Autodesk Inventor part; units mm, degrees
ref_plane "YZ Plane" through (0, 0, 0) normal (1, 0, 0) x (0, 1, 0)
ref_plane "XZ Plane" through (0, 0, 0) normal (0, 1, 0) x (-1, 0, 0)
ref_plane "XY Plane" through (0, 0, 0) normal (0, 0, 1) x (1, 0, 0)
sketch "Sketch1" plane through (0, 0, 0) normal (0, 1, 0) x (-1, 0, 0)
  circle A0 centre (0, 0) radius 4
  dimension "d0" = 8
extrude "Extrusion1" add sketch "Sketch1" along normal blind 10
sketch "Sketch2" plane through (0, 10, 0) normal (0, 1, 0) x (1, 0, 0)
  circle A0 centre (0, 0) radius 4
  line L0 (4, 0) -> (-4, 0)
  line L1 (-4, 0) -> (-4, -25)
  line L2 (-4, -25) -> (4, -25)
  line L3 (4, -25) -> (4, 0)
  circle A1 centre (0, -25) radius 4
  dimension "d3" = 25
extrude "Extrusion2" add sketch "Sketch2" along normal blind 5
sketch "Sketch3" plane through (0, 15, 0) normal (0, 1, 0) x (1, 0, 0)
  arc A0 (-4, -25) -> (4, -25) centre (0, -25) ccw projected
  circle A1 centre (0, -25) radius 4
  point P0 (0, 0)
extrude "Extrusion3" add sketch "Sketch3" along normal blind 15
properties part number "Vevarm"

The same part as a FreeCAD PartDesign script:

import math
import FreeCAD as App
import Part
import Sketcher

doc = App.newDocument("Part")
body = doc.addObject("PartDesign::Body", "Body")

sketch1 = body.newObject("Sketcher::SketchObject", "Sketch")
sketch1.AttachmentSupport = (doc.getObject("XZ_Plane"), [""])
sketch1.MapMode = "FlatFace"
sketch1.addGeometry(Part.Circle(App.Vector(0, 0, 0), App.Vector(0, 0, 1), 4), False)
sketch1.addConstraint([
    Sketcher.Constraint("Coincident", 0, 3, -1, 1),
    Sketcher.Constraint("Diameter", 0, 8.0),
])
pad1 = body.newObject("PartDesign::Pad", "Pad")
pad1.Profile = sketch1
pad1.Length = 10
pad1.Reversed = True

sketch2 = body.newObject("Sketcher::SketchObject", "Sketch001")
sketch2.AttachmentSupport = (doc.getObject("XZ_Plane"), [""])
sketch2.MapMode = "FlatFace"
sketch2.AttachmentOffset = App.Placement(App.Vector(0, 0, -10), App.Rotation())
sketch2.addGeometry([
    Part.ArcOfCircle(Part.Circle(App.Vector(0, 0, 0), App.Vector(0, 0, 1), 4), math.radians(180), math.radians(360)),
    Part.LineSegment(App.Vector(-4, 0, 0), App.Vector(-4, 25, 0)),
    Part.ArcOfCircle(Part.Circle(App.Vector(0, 25, 0), App.Vector(0, 0, 1), 4), math.radians(0), math.radians(180)),
    Part.LineSegment(App.Vector(4, 25, 0), App.Vector(4, 0, 0)),
], False)
sketch2.addConstraint([
    Sketcher.Constraint("Tangent", 0, 1, 1, 1),
    Sketcher.Constraint("Tangent", 1, 2, 2, 2),
    Sketcher.Constraint("Tangent", 2, 1, 3, 1),
    Sketcher.Constraint("Tangent", 3, 2, 0, 2),
    Sketcher.Constraint("Vertical", 1),
    Sketcher.Constraint("Vertical", 3),
    Sketcher.Constraint("Coincident", 0, 3, -1, 1),
    Sketcher.Constraint("DistanceY", 1, 1, 1, 2, 25.0),
    Sketcher.Constraint("Radius", 0, 4.0),
])
pad2 = body.newObject("PartDesign::Pad", "Pad001")
pad2.Profile = sketch2
pad2.Length = 5
pad2.Reversed = True

sketch3 = body.newObject("Sketcher::SketchObject", "Sketch002")
sketch3.AttachmentSupport = (doc.getObject("XZ_Plane"), [""])
sketch3.MapMode = "FlatFace"
sketch3.AttachmentOffset = App.Placement(App.Vector(0, 0, -15), App.Rotation())
sketch3.addGeometry(Part.Circle(App.Vector(0, 25, 0), App.Vector(0, 0, 1), 4), False)
sketch3.addConstraint([
    Sketcher.Constraint("PointOnObject", 0, 3, -2),
    Sketcher.Constraint("Diameter", 0, 8.0),
    Sketcher.Constraint("DistanceY", -1, 1, 0, 3, 25.0),
])
pad3 = body.newObject("PartDesign::Pad", "Pad002")
pad3.Profile = sketch3
pad3.Length = 15
pad3.Reversed = True

doc.recompute()
